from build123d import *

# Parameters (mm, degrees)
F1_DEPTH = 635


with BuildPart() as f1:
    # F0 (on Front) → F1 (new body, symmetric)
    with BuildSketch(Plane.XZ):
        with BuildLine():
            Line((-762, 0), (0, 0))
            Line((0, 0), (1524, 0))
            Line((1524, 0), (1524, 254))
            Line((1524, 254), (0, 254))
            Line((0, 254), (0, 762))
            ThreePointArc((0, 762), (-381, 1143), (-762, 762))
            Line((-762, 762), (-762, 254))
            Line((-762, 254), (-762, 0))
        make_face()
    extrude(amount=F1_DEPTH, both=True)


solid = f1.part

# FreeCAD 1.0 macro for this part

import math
import FreeCAD as App
import Part
import Sketcher
from FreeCAD import Vector
Q = App.Units.Quantity

doc = App.newDocument("Part")
params = doc.addObject("Spreadsheet::Sheet", "Params")
for row, (alias, value) in enumerate([
    ("sketch1_radius", "15 in"),
    ("sketch1_width", "90 in"),
    ("sketch1_height", "10 in"),
    ("sketch1_height2", "20 in"),
    ("pad1_length", "50 in"),
], start=1):
    params.set(f"A{row}", alias)
    params.set(f"B{row}", "=" + value)
    params.setAlias(f"B{row}", alias)

body = doc.addObject("PartDesign::Body", "Body")

sketch1 = doc.addObject("Sketcher::SketchObject", "Sketch")
body.addObject(sketch1)
sketch1.AttachmentSupport = (doc.XZ_Plane, [""])
sketch1.MapMode = "FlatFace"
sketch1.addGeometry([
    Part.LineSegment(Vector(-762, 0, 0), Vector(1524, 0, 0)),
    Part.LineSegment(Vector(1524, 0, 0), Vector(1524, 254, 0)),
    Part.LineSegment(Vector(1524, 254, 0), Vector(0, 254, 0)),
    Part.LineSegment(Vector(0, 254, 0), Vector(0, 762, 0)),
    Part.ArcOfCircle(Part.Circle(Vector(-381, 762, 0), Vector(0, 0, 1), 381), math.radians(0), math.radians(180)),
    Part.LineSegment(Vector(-762, 762, 0), Vector(-762, 0, 0)),
], False)
sketch1.addConstraint([
    Sketcher.Constraint("Coincident", 0, 2, 1, 1),
    Sketcher.Constraint("Coincident", 1, 2, 2, 1),
    Sketcher.Constraint("Coincident", 2, 2, 3, 1),
    Sketcher.Constraint("Tangent", 3, 2, 4, 1),
    Sketcher.Constraint("Tangent", 4, 2, 5, 1),
    Sketcher.Constraint("Coincident", 5, 2, 0, 1),
    Sketcher.Constraint("Horizontal", 0),
    Sketcher.Constraint("Vertical", 1),
    Sketcher.Constraint("Horizontal", 2),
    Sketcher.Constraint("Vertical", 3),
    Sketcher.Constraint("Vertical", 5),
    Sketcher.Constraint("PointOnObject", 0, 2, -1),
    Sketcher.Constraint("PointOnObject", 2, 2, -2),
    Sketcher.Constraint("Radius", 4, Q("15 in")),
    Sketcher.Constraint("DistanceX", 0, 1, 0, 2, Q("90 in")),
    Sketcher.Constraint("DistanceY", 1, 1, 1, 2, Q("10 in")),
    Sketcher.Constraint("DistanceY", 3, 1, 3, 2, Q("20 in")),
])
sketch1.setExpression("Constraints[13]", "Params.sketch1_radius")
sketch1.setExpression("Constraints[14]", "Params.sketch1_width")
sketch1.setExpression("Constraints[15]", "Params.sketch1_height")
sketch1.setExpression("Constraints[16]", "Params.sketch1_height2")
pad1 = doc.addObject("PartDesign::Pad", "Pad")
body.addObject(pad1)
pad1.Profile = sketch1
pad1.setExpression("Length", "Params.pad1_length")
pad1.Midplane = True

doc.recompute()
